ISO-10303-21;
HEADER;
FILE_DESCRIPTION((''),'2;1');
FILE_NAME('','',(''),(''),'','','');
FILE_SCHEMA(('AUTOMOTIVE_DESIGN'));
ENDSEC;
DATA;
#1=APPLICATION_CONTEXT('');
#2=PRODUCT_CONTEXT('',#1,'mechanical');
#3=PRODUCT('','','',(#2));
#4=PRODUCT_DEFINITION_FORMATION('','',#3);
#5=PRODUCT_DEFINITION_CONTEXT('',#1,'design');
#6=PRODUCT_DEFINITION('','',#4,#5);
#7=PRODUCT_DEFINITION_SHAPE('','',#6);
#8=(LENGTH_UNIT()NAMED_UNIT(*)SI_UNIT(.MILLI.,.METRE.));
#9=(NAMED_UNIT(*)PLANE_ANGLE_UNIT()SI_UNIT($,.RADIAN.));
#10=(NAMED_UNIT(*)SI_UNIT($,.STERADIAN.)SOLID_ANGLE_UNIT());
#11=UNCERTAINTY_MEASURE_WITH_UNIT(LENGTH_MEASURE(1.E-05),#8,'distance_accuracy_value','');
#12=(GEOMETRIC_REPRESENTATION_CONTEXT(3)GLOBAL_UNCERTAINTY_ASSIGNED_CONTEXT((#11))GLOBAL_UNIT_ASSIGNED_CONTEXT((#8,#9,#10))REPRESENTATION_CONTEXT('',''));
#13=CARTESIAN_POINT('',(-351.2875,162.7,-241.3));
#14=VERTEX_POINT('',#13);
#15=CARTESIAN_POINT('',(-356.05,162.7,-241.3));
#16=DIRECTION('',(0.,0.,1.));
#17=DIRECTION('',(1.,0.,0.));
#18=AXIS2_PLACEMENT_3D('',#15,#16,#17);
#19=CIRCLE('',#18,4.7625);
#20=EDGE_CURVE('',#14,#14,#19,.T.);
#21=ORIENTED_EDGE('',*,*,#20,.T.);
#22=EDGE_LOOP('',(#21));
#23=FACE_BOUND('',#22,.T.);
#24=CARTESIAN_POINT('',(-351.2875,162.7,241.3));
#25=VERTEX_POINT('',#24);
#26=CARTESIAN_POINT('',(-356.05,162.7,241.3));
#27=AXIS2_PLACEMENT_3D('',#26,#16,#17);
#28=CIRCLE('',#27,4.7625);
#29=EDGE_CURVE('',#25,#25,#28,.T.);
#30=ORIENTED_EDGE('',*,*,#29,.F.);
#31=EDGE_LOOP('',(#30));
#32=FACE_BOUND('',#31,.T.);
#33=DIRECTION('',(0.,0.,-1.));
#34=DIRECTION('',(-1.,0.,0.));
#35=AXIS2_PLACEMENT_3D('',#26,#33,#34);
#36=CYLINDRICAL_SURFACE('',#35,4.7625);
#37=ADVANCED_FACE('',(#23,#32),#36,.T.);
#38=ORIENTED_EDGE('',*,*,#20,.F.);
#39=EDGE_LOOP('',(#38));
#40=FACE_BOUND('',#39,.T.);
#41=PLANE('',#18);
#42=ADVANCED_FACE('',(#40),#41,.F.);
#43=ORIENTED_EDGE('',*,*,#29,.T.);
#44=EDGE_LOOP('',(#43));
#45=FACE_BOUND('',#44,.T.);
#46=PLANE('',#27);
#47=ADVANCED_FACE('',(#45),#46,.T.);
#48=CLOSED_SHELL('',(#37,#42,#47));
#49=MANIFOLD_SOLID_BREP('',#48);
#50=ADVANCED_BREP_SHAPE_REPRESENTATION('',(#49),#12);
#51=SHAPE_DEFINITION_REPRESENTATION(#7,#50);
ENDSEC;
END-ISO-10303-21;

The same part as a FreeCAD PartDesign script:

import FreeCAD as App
import Part
import Sketcher
from FreeCAD import Vector
Q = App.Units.Quantity

doc = App.newDocument("Part")
body = doc.addObject("PartDesign::Body", "Body")

# Sketch on XY plane
sketch1 = body.newObject("Sketcher::SketchObject", "Sketch")
sketch1.AttachmentSupport = (doc.getObject("XY_Plane"), [""])
sketch1.MapMode = "FlatFace"
sketch1.addGeometry(Part.Circle(Vector(-356.05, 162.7, 0), Vector(0, 0, 1), 4.7625), False)
sketch1.addConstraint([
    Sketcher.Constraint("Diameter", 0, Q("0.375 in")),
    Sketcher.Constraint("DistanceX", 0, 3, -1, 1, Q("356.05 mm")),
    Sketcher.Constraint("DistanceY", -1, 1, 0, 3, Q("162.7 mm")),
])
pad1 = body.newObject("PartDesign::Pad", "Pad")
pad1.Profile = sketch1
pad1.Length = Q("19 in")
pad1.Midplane = True

doc.recompute()
